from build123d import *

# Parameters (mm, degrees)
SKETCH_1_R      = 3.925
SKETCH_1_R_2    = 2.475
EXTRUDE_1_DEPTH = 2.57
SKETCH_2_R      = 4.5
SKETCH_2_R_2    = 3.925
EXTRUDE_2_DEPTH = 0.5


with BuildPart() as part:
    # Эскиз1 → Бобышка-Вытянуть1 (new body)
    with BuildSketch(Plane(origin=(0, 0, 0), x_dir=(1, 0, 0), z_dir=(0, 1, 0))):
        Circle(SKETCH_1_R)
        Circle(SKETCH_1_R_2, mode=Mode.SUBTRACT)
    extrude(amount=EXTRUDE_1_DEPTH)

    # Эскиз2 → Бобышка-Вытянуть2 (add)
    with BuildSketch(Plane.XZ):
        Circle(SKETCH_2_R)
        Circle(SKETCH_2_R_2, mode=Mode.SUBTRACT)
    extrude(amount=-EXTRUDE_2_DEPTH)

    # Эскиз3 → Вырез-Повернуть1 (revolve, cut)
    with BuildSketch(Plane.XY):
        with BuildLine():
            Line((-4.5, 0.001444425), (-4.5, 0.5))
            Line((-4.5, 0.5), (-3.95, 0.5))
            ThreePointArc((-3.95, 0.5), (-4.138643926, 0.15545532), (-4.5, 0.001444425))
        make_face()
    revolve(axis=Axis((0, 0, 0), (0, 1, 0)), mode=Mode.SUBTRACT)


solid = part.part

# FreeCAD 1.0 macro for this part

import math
import FreeCAD as App
import Part
import Sketcher

doc = App.newDocument("Part")
body = doc.addObject("PartDesign::Body", "Body")

# Sketch on XZ plane
sketch1 = body.newObject("Sketcher::SketchObject", "Sketch")
sketch1.AttachmentSupport = (doc.getObject("XZ_Plane"), [""])
sketch1.MapMode = "FlatFace"
sketch1.addGeometry(Part.Circle(App.Vector(0, 0, 0), App.Vector(0, 0, 1), 3.9), False)
sketch1.addGeometry(Part.Circle(App.Vector(0, 0, 0), App.Vector(0, 0, 1), 2.5), False)
sketch1.addConstraint(Sketcher.Constraint("Coincident", 0, 3, -1, 1))
sketch1.addConstraint(Sketcher.Constraint("Coincident", 1, 3, -1, 1))
sketch1.addConstraint(Sketcher.Constraint("Diameter", 0, 7.85))
sketch1.addConstraint(Sketcher.Constraint("Diameter", 1, 4.95))
pad1 = body.newObject("PartDesign::Pad", "Pad")
pad1.Profile = sketch1
pad1.Length = 2.57
pad1.Reversed = True

# Sketch on XZ plane
sketch2 = body.newObject("Sketcher::SketchObject", "Sketch001")
sketch2.AttachmentSupport = (doc.getObject("XZ_Plane"), [""])
sketch2.MapMode = "FlatFace"
sketch2.addGeometry(Part.Circle(App.Vector(0, 0, 0), App.Vector(0, 0, 1), 4.5), False)
sketch2.addGeometry(Part.Circle(App.Vector(0, 0, 0), App.Vector(0, 0, 1), 3.9), False)
sketch2.addConstraint(Sketcher.Constraint("Coincident", 0, 3, -1, 1))
sketch2.addConstraint(Sketcher.Constraint("Coincident", 1, 3, -1, 1))
sketch2.addConstraint(Sketcher.Constraint("Diameter", 0, 9.0))
sketch2.addConstraint(Sketcher.Constraint("Diameter", 1, 7.85))
pad2 = body.newObject("PartDesign::Pad", "Pad001")
pad2.Profile = sketch2
pad2.Length = 0.5
pad2.Reversed = True

# Sketch on XY plane
sketch3 = body.newObject("Sketcher::SketchObject", "Sketch002")
sketch3.AttachmentSupport = (doc.getObject("XY_Plane"), [""])
sketch3.MapMode = "FlatFace"
sketch3.addGeometry(Part.LineSegment(App.Vector(-4.5, 0.5, 0), App.Vector(-4.5, 0, 0)), False)
sketch3.addGeometry(Part.ArcOfCircle(Part.Circle(App.Vector(-4.54, 0.6, 0), App.Vector(0, 0, 1), 0.6), math.radians(-86), math.radians(-10)), False)
sketch3.addGeometry(Part.LineSegment(App.Vector(-3.95, 0.5, 0), App.Vector(-4.5, 0.5, 0)), False)
sketch3.addConstraint(Sketcher.Constraint("Coincident", 0, 2, 1, 1))
sketch3.addConstraint(Sketcher.Constraint("Coincident", 1, 2, 2, 1))
sketch3.addConstraint(Sketcher.Constraint("Coincident", 2, 2, 0, 1))
sketch3.addConstraint(Sketcher.Constraint("Vertical", 0))
sketch3.addConstraint(Sketcher.Constraint("Horizontal", 2))
sketch3.addConstraint(Sketcher.Constraint("Radius", 1, 0.6))
sketch3.addConstraint(Sketcher.Constraint("DistanceX", 2, 2, 2, 1, 0.55))
sketch3.addConstraint(Sketcher.Constraint("DistanceY", -1, 1, 1, 3, 0.6))
sketch3.addConstraint(Sketcher.Constraint("DistanceX", 0, 2, -1, 1, 4.5))
sketch3.addConstraint(Sketcher.Constraint("DistanceY", -1, 1, 1, 2, 0.5))
groove = body.newObject("PartDesign::Groove", "Groove")
groove.Profile = sketch3
groove.ReferenceAxis = (sketch3, ["V_Axis"])
groove.Angle = 360

doc.recompute()
